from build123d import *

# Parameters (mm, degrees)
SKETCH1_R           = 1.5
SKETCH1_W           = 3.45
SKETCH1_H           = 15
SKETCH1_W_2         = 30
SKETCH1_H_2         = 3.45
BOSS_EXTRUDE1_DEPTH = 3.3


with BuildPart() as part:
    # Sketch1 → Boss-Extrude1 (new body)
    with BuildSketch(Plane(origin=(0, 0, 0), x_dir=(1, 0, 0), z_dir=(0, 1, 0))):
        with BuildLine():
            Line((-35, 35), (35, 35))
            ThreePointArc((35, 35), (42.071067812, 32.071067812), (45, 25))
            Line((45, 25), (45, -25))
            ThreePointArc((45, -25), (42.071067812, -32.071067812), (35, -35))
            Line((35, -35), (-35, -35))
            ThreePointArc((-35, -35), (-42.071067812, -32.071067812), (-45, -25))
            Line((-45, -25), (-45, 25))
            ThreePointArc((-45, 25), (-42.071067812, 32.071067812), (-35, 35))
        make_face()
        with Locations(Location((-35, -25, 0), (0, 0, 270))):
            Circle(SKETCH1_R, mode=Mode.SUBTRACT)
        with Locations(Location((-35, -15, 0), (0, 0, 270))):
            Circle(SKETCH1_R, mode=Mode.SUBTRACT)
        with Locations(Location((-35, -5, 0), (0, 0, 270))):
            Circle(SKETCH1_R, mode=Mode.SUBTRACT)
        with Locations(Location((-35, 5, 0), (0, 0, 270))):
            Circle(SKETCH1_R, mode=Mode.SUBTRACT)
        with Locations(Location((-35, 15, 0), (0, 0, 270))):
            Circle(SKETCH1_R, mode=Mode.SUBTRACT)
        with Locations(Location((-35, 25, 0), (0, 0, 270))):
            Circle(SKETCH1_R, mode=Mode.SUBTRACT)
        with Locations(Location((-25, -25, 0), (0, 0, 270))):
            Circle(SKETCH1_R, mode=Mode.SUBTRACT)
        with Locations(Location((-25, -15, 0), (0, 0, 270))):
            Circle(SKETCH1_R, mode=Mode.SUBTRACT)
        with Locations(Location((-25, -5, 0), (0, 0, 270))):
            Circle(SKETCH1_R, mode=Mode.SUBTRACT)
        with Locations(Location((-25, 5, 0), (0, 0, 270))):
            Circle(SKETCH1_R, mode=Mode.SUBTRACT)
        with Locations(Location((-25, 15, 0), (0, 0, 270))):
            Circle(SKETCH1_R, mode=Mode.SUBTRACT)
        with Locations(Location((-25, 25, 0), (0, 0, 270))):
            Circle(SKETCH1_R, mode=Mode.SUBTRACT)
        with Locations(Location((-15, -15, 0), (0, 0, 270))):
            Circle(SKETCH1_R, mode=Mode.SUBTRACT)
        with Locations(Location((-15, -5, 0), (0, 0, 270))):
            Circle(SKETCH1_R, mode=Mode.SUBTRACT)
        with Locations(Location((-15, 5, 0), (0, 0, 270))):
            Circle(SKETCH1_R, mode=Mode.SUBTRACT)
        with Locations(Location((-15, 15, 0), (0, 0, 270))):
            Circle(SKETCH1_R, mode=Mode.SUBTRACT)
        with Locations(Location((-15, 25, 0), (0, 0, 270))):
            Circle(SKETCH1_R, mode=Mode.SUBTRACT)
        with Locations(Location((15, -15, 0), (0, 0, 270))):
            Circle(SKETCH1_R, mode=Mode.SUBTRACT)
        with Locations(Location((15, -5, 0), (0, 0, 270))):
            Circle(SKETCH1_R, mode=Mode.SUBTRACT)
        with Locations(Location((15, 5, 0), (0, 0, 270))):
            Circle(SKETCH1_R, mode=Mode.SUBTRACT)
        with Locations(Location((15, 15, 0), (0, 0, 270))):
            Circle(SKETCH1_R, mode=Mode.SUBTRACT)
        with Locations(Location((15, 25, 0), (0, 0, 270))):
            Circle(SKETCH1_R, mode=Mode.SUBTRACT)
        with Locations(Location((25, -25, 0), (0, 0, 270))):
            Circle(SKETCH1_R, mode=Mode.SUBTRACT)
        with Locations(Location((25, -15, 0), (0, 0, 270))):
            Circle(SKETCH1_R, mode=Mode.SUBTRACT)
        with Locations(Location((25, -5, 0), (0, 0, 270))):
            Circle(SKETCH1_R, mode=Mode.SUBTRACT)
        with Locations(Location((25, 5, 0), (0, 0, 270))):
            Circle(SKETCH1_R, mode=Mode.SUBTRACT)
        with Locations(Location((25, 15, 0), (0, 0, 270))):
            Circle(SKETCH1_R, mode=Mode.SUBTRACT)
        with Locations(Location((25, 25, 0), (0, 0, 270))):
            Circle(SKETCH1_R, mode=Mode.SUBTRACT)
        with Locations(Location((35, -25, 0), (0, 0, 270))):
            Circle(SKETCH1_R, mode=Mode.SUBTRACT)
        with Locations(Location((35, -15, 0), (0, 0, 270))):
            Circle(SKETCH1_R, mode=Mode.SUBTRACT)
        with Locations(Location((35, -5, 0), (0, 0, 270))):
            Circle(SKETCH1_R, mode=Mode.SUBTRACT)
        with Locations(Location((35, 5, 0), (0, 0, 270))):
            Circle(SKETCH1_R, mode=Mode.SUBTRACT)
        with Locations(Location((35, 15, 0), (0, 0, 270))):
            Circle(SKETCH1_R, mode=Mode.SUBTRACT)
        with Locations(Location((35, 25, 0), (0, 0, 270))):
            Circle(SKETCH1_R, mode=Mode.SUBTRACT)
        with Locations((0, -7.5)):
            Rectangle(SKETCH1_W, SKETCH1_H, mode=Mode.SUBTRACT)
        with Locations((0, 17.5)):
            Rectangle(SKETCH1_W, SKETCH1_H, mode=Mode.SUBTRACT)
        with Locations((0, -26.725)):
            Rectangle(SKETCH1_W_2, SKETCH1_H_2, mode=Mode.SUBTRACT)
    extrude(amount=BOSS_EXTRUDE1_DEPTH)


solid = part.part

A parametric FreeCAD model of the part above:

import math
import FreeCAD as App
import Part
import Sketcher

V = App.Vector

doc = App.newDocument("Part")
body = doc.addObject("PartDesign::Body", "Body")

# Sketch on XZ plane
sketch1 = body.newObject("Sketcher::SketchObject", "Sketch")
sketch1.AttachmentSupport = (doc.getObject("XZ_Plane"), [""])
sketch1.MapMode = "FlatFace"
sketch1.addGeometry([
    Part.LineSegment(V(35, -35, 0), V(-35, -35, 0)),  # 0
    Part.ArcOfCircle(Part.Circle(V(-35, -25, 0), V(0, 0, 1), 10), math.radians(180), math.radians(270)),  # 1
    Part.LineSegment(V(-45, -25, 0), V(-45, 25, 0)),  # 2
    Part.ArcOfCircle(Part.Circle(V(-35, 25, 0), V(0, 0, 1), 10), math.radians(90), math.radians(180)),  # 3
    Part.LineSegment(V(-35, 35, 0), V(35, 35, 0)),  # 4
    Part.ArcOfCircle(Part.Circle(V(35, 25, 0), V(0, 0, 1), 10), math.radians(0), math.radians(90)),  # 5
    Part.LineSegment(V(45, 25, 0), V(45, -25, 0)),  # 6
    Part.ArcOfCircle(Part.Circle(V(35, -25, 0), V(0, 0, 1), 10), math.radians(-90), math.radians(0)),  # 7
    Part.Circle(V(35, 25, 0), V(0, 0, 1), 1.5),  # 8
    Part.Circle(V(25, 25, 0), V(0, 0, 1), 1.5),  # 9
    Part.Circle(V(35, 15, 0), V(0, 0, 1), 1.5),  # 10
    Part.Circle(V(25, 15, 0), V(0, 0, 1), 1.5),  # 11
    Part.Circle(V(15, 15, 0), V(0, 0, 1), 1.5),  # 12
    Part.Circle(V(35, 5, 0), V(0, 0, 1), 1.5),  # 13
    Part.Circle(V(25, 5, 0), V(0, 0, 1), 1.5),  # 14
    Part.Circle(V(15, 5, 0), V(0, 0, 1), 1.5),  # 15
    Part.LineSegment(V(-15, 28.4, 0), V(-15, 25, 0)),  # 16
    Part.LineSegment(V(-15, 25, 0), V(15, 25, 0)),  # 17
    Part.LineSegment(V(15, 25, 0), V(15, 28.4, 0)),  # 18
    Part.LineSegment(V(15, 28.4, 0), V(-15, 28.4, 0)),  # 19
    Part.Circle(V(-15, 15, 0), V(0, 0, 1), 1.5),  # 20
    Part.Circle(V(-25, 25, 0), V(0, 0, 1), 1.5),  # 21
    Part.Circle(V(-35, 25, 0), V(0, 0, 1), 1.5),  # 22
    Part.Circle(V(-25, 15, 0), V(0, 0, 1), 1.5),  # 23
    Part.Circle(V(-35, 15, 0), V(0, 0, 1), 1.5),  # 24
    Part.LineSegment(V(-1.7, 15, 0), V(-1.7, 0, 0)),  # 25
    Part.LineSegment(V(-1.7, 0, 0), V(1.7, 0, 0)),  # 26
    Part.LineSegment(V(1.7, 0, 0), V(1.7, 15, 0)),  # 27
    Part.LineSegment(V(1.7, 15, 0), V(-1.7, 15, 0)),  # 28
    Part.Circle(V(-15, 5, 0), V(0, 0, 1), 1.5),  # 29
    Part.Circle(V(-25, 5, 0), V(0, 0, 1), 1.5),  # 30
    Part.Circle(V(-35, 5, 0), V(0, 0, 1), 1.5),  # 31
    Part.Circle(V(35, -5, 0), V(0, 0, 1), 1.5),  # 32
    Part.Circle(V(25, -5, 0), V(0, 0, 1), 1.5),  # 33
    Part.Circle(V(15, -5, 0), V(0, 0, 1), 1.5),  # 34
    Part.Circle(V(35, -15, 0), V(0, 0, 1), 1.5),  # 35
    Part.Circle(V(25, -15, 0), V(0, 0, 1), 1.5),  # 36
    Part.Circle(V(35, -25, 0), V(0, 0, 1), 1.5),  # 37
    Part.Circle(V(25, -25, 0), V(0, 0, 1), 1.5),  # 38
    Part.Circle(V(15, -15, 0), V(0, 0, 1), 1.5),  # 39
    Part.Circle(V(15, -25, 0), V(0, 0, 1), 1.5),  # 40
    Part.Circle(V(-15, -5, 0), V(0, 0, 1), 1.5),  # 41
    Part.Circle(V(-25, -5, 0), V(0, 0, 1), 1.5),  # 42
    Part.Circle(V(-35, -5, 0), V(0, 0, 1), 1.5),  # 43
    Part.LineSegment(V(-1.7, -10, 0), V(-1.7, -25, 0)),  # 44
    Part.LineSegment(V(-1.7, -25, 0), V(1.7, -25, 0)),  # 45
    Part.LineSegment(V(1.7, -25, 0), V(1.7, -10, 0)),  # 46
    Part.LineSegment(V(1.7, -10, 0), V(-1.7, -10, 0)),  # 47
    Part.Circle(V(-15, -15, 0), V(0, 0, 1), 1.5),  # 48
    Part.Circle(V(-15, -25, 0), V(0, 0, 1), 1.5),  # 49
    Part.Circle(V(-25, -15, 0), V(0, 0, 1), 1.5),  # 50
    Part.Circle(V(-35, -15, 0), V(0, 0, 1), 1.5),  # 51
    Part.Circle(V(-25, -25, 0), V(0, 0, 1), 1.5),  # 52
    Part.Circle(V(-35, -25, 0), V(0, 0, 1), 1.5),  # 53
], False)
sketch1.addConstraint([
    Sketcher.Constraint("Tangent", 0, 2, 1, 2),
    Sketcher.Constraint("Tangent", 1, 1, 2, 1),
    Sketcher.Constraint("Tangent", 2, 2, 3, 2),
    Sketcher.Constraint("Tangent", 3, 1, 4, 1),
    Sketcher.Constraint("Tangent", 4, 2, 5, 2),
    Sketcher.Constraint("Tangent", 5, 1, 6, 1),
    Sketcher.Constraint("Tangent", 6, 2, 7, 2),
    Sketcher.Constraint("Tangent", 7, 1, 0, 1),
    Sketcher.Constraint("Coincident", 16, 2, 17, 1),
    Sketcher.Constraint("Coincident", 17, 2, 18, 1),
    Sketcher.Constraint("Coincident", 18, 2, 19, 1),
    Sketcher.Constraint("Coincident", 19, 2, 16, 1),
    Sketcher.Constraint("Coincident", 25, 2, 26, 1),
    Sketcher.Constraint("Coincident", 26, 2, 27, 1),
    Sketcher.Constraint("Coincident", 27, 2, 28, 1),
    Sketcher.Constraint("Coincident", 28, 2, 25, 1),
    Sketcher.Constraint("Coincident", 44, 2, 45, 1),
    Sketcher.Constraint("Coincident", 45, 2, 46, 1),
    Sketcher.Constraint("Coincident", 46, 2, 47, 1),
    Sketcher.Constraint("Coincident", 47, 2, 44, 1),
    Sketcher.Constraint("Horizontal", 0),
    Sketcher.Constraint("Vertical", 2),
    Sketcher.Constraint("Horizontal", 4),
    Sketcher.Constraint("Vertical", 6),
    Sketcher.Constraint("Vertical", 16),
    Sketcher.Constraint("Horizontal", 17),
    Sketcher.Constraint("Vertical", 18),
    Sketcher.Constraint("Horizontal", 19),
    Sketcher.Constraint("Vertical", 25),
    Sketcher.Constraint("Horizontal", 26),
    Sketcher.Constraint("Vertical", 27),
    Sketcher.Constraint("Horizontal", 28),
    Sketcher.Constraint("Vertical", 44),
    Sketcher.Constraint("Horizontal", 45),
    Sketcher.Constraint("Vertical", 46),
    Sketcher.Constraint("Horizontal", 47),
    Sketcher.Constraint("Coincident", 8, 3, 5, 3),
    Sketcher.Constraint("Coincident", 22, 3, 3, 3),
    Sketcher.Constraint("Coincident", 37, 3, 7, 3),
    Sketcher.Constraint("Coincident", 53, 3, 1, 3),
    Sketcher.Constraint("Equal", 1, 3),
    Sketcher.Constraint("Equal", 3, 5),
    Sketcher.Constraint("Equal", 5, 7),
    Sketcher.Constraint("Equal", 8, 9),
    Sketcher.Constraint("Equal", 9, 10),
    Sketcher.Constraint("Equal", 10, 11),
    Sketcher.Constraint("Equal", 11, 12),
    Sketcher.Constraint("Equal", 12, 13),
    Sketcher.Constraint("Equal", 13, 14),
    Sketcher.Constraint("Equal", 14, 15),
    Sketcher.Constraint("Equal", 15, 20),
    Sketcher.Constraint("Equal", 20, 21),
    Sketcher.Constraint("Equal", 21, 22),
    Sketcher.Constraint("Equal", 22, 23),
    Sketcher.Constraint("Equal", 23, 24),
    Sketcher.Constraint("Equal", 24, 29),
    Sketcher.Constraint("Equal", 29, 30),
    Sketcher.Constraint("Equal", 30, 31),
    Sketcher.Constraint("Equal", 31, 32),
    Sketcher.Constraint("Equal", 32, 33),
    Sketcher.Constraint("Equal", 33, 34),
    Sketcher.Constraint("Equal", 34, 35),
    Sketcher.Constraint("Equal", 35, 36),
    Sketcher.Constraint("Equal", 36, 37),
    Sketcher.Constraint("Equal", 37, 38),
    Sketcher.Constraint("Equal", 38, 39),
    Sketcher.Constraint("Equal", 39, 40),
    Sketcher.Constraint("Equal", 40, 41),
    Sketcher.Constraint("Equal", 41, 42),
    Sketcher.Constraint("Equal", 42, 43),
    Sketcher.Constraint("Equal", 43, 48),
    Sketcher.Constraint("Equal", 48, 49),
    Sketcher.Constraint("Equal", 49, 50),
    Sketcher.Constraint("Equal", 50, 51),
    Sketcher.Constraint("Equal", 51, 52),
    Sketcher.Constraint("Equal", 52, 53),
    Sketcher.Constraint("Symmetric", 1, 3, 5, 3, -1, 1),
    Sketcher.Constraint("Symmetric", 31, 3, 32, 3, -1, 1),
    Sketcher.Constraint("Symmetric", 30, 3, 33, 3, -1, 1),
    Sketcher.Constraint("Symmetric", 29, 3, 34, 3, -1, 1),
    Sketcher.Constraint("Symmetric", 24, 3, 35, 3, -1, 1),
    Sketcher.Constraint("Symmetric", 23, 3, 36, 3, -1, 1),
    Sketcher.Constraint("Symmetric", 21, 3, 38, 3, -1, 1),
    Sketcher.Constraint("Symmetric", 20, 3, 39, 3, -1, 1),
    Sketcher.Constraint("Symmetric", 15, 3, 41, 3, -1, 1),
    Sketcher.Constraint("Symmetric", 14, 3, 42, 3, -1, 1),
    Sketcher.Constraint("Symmetric", 13, 3, 43, 3, -1, 1),
    Sketcher.Constraint("Symmetric", 12, 3, 48, 3, -1, 1),
    Sketcher.Constraint("Symmetric", 11, 3, 50, 3, -1, 1),
    Sketcher.Constraint("Symmetric", 10, 3, 51, 3, -1, 1),
    Sketcher.Constraint("Symmetric", 9, 3, 52, 3, -1, 1),
    Sketcher.Constraint("Symmetric", 25, 2, 26, 2, -1, 1),
    Sketcher.Constraint("Symmetric", 12, 3, 20, 3, -2),
    Sketcher.Constraint("Symmetric", 9, 3, 21, 3, -2),
    Sketcher.Constraint("Symmetric", 11, 3, 23, 3, -2),
    Sketcher.Constraint("Symmetric", 10, 3, 24, 3, -2),
    Sketcher.Constraint("Symmetric", 15, 3, 29, 3, -2),
    Sketcher.Constraint("Symmetric", 14, 3, 30, 3, -2),
    Sketcher.Constraint("Symmetric", 13, 3, 31, 3, -2),
    Sketcher.Constraint("Symmetric", 40, 3, 49, 3, -2),
    Sketcher.Constraint("Horizontal", 8, 3, 9, 3),
    Sketcher.Constraint("Horizontal", 10, 3, 11, 3),
    Sketcher.Constraint("Horizontal", 11, 3, 12, 3),
    Sketcher.Constraint("Horizontal", 13, 3, 14, 3),
    Sketcher.Constraint("Horizontal", 14, 3, 15, 3),
    Sketcher.Constraint("Horizontal", 38, 3, 40, 3),
    Sketcher.Constraint("Horizontal", 5, 1, 16, 2),
    Sketcher.Constraint("Horizontal", 24, 3, 27, 2),
    Sketcher.Constraint("Horizontal", 6, 2, 44, 2),
    Sketcher.Constraint("Vertical", 8, 3, 10, 3),
    Sketcher.Constraint("Vertical", 9, 3, 11, 3),
    Sketcher.Constraint("Vertical", 10, 3, 13, 3),
    Sketcher.Constraint("Vertical", 11, 3, 14, 3),
    Sketcher.Constraint("Vertical", 12, 3, 15, 3),
    Sketcher.Constraint("Vertical", 39, 3, 40, 3),
    Sketcher.Constraint("Vertical", 49, 3, 16, 2),
    Sketcher.Constraint("Vertical", 40, 3, 17, 2),
    Sketcher.Constraint("Vertical", 28, 2, 44, 2),
    Sketcher.Constraint("Vertical", 27, 2, 45, 2),
    Sketcher.Constraint("Equal", 47, 16),
    Sketcher.Constraint("Equal", 27, 44),
    Sketcher.Constraint("Diameter", 8, 3.0),
    Sketcher.Constraint("Radius", 1, 10.0),
    Sketcher.Constraint("DistanceX", 0, 2, 0, 1, 70.0),
    Sketcher.Constraint("DistanceX", 17, 1, 17, 2, 30.0),
    Sketcher.Constraint("DistanceY", 2, 1, 2, 2, 50.0),
    Sketcher.Constraint("DistanceY", 25, 2, 25, 1, 15.0),
    Sketcher.Constraint("DistanceX", -1, 1, 9, 3, 25.0),
    Sketcher.Constraint("DistanceY", -1, 1, 13, 3, 5.0),
    Sketcher.Constraint("DistanceX", 26, 1, 26, 2, 3.45),
])
pad1 = body.newObject("PartDesign::Pad", "Pad")
pad1.Profile = sketch1
pad1.Length = 3.3
pad1.Reversed = True

doc.recompute()
